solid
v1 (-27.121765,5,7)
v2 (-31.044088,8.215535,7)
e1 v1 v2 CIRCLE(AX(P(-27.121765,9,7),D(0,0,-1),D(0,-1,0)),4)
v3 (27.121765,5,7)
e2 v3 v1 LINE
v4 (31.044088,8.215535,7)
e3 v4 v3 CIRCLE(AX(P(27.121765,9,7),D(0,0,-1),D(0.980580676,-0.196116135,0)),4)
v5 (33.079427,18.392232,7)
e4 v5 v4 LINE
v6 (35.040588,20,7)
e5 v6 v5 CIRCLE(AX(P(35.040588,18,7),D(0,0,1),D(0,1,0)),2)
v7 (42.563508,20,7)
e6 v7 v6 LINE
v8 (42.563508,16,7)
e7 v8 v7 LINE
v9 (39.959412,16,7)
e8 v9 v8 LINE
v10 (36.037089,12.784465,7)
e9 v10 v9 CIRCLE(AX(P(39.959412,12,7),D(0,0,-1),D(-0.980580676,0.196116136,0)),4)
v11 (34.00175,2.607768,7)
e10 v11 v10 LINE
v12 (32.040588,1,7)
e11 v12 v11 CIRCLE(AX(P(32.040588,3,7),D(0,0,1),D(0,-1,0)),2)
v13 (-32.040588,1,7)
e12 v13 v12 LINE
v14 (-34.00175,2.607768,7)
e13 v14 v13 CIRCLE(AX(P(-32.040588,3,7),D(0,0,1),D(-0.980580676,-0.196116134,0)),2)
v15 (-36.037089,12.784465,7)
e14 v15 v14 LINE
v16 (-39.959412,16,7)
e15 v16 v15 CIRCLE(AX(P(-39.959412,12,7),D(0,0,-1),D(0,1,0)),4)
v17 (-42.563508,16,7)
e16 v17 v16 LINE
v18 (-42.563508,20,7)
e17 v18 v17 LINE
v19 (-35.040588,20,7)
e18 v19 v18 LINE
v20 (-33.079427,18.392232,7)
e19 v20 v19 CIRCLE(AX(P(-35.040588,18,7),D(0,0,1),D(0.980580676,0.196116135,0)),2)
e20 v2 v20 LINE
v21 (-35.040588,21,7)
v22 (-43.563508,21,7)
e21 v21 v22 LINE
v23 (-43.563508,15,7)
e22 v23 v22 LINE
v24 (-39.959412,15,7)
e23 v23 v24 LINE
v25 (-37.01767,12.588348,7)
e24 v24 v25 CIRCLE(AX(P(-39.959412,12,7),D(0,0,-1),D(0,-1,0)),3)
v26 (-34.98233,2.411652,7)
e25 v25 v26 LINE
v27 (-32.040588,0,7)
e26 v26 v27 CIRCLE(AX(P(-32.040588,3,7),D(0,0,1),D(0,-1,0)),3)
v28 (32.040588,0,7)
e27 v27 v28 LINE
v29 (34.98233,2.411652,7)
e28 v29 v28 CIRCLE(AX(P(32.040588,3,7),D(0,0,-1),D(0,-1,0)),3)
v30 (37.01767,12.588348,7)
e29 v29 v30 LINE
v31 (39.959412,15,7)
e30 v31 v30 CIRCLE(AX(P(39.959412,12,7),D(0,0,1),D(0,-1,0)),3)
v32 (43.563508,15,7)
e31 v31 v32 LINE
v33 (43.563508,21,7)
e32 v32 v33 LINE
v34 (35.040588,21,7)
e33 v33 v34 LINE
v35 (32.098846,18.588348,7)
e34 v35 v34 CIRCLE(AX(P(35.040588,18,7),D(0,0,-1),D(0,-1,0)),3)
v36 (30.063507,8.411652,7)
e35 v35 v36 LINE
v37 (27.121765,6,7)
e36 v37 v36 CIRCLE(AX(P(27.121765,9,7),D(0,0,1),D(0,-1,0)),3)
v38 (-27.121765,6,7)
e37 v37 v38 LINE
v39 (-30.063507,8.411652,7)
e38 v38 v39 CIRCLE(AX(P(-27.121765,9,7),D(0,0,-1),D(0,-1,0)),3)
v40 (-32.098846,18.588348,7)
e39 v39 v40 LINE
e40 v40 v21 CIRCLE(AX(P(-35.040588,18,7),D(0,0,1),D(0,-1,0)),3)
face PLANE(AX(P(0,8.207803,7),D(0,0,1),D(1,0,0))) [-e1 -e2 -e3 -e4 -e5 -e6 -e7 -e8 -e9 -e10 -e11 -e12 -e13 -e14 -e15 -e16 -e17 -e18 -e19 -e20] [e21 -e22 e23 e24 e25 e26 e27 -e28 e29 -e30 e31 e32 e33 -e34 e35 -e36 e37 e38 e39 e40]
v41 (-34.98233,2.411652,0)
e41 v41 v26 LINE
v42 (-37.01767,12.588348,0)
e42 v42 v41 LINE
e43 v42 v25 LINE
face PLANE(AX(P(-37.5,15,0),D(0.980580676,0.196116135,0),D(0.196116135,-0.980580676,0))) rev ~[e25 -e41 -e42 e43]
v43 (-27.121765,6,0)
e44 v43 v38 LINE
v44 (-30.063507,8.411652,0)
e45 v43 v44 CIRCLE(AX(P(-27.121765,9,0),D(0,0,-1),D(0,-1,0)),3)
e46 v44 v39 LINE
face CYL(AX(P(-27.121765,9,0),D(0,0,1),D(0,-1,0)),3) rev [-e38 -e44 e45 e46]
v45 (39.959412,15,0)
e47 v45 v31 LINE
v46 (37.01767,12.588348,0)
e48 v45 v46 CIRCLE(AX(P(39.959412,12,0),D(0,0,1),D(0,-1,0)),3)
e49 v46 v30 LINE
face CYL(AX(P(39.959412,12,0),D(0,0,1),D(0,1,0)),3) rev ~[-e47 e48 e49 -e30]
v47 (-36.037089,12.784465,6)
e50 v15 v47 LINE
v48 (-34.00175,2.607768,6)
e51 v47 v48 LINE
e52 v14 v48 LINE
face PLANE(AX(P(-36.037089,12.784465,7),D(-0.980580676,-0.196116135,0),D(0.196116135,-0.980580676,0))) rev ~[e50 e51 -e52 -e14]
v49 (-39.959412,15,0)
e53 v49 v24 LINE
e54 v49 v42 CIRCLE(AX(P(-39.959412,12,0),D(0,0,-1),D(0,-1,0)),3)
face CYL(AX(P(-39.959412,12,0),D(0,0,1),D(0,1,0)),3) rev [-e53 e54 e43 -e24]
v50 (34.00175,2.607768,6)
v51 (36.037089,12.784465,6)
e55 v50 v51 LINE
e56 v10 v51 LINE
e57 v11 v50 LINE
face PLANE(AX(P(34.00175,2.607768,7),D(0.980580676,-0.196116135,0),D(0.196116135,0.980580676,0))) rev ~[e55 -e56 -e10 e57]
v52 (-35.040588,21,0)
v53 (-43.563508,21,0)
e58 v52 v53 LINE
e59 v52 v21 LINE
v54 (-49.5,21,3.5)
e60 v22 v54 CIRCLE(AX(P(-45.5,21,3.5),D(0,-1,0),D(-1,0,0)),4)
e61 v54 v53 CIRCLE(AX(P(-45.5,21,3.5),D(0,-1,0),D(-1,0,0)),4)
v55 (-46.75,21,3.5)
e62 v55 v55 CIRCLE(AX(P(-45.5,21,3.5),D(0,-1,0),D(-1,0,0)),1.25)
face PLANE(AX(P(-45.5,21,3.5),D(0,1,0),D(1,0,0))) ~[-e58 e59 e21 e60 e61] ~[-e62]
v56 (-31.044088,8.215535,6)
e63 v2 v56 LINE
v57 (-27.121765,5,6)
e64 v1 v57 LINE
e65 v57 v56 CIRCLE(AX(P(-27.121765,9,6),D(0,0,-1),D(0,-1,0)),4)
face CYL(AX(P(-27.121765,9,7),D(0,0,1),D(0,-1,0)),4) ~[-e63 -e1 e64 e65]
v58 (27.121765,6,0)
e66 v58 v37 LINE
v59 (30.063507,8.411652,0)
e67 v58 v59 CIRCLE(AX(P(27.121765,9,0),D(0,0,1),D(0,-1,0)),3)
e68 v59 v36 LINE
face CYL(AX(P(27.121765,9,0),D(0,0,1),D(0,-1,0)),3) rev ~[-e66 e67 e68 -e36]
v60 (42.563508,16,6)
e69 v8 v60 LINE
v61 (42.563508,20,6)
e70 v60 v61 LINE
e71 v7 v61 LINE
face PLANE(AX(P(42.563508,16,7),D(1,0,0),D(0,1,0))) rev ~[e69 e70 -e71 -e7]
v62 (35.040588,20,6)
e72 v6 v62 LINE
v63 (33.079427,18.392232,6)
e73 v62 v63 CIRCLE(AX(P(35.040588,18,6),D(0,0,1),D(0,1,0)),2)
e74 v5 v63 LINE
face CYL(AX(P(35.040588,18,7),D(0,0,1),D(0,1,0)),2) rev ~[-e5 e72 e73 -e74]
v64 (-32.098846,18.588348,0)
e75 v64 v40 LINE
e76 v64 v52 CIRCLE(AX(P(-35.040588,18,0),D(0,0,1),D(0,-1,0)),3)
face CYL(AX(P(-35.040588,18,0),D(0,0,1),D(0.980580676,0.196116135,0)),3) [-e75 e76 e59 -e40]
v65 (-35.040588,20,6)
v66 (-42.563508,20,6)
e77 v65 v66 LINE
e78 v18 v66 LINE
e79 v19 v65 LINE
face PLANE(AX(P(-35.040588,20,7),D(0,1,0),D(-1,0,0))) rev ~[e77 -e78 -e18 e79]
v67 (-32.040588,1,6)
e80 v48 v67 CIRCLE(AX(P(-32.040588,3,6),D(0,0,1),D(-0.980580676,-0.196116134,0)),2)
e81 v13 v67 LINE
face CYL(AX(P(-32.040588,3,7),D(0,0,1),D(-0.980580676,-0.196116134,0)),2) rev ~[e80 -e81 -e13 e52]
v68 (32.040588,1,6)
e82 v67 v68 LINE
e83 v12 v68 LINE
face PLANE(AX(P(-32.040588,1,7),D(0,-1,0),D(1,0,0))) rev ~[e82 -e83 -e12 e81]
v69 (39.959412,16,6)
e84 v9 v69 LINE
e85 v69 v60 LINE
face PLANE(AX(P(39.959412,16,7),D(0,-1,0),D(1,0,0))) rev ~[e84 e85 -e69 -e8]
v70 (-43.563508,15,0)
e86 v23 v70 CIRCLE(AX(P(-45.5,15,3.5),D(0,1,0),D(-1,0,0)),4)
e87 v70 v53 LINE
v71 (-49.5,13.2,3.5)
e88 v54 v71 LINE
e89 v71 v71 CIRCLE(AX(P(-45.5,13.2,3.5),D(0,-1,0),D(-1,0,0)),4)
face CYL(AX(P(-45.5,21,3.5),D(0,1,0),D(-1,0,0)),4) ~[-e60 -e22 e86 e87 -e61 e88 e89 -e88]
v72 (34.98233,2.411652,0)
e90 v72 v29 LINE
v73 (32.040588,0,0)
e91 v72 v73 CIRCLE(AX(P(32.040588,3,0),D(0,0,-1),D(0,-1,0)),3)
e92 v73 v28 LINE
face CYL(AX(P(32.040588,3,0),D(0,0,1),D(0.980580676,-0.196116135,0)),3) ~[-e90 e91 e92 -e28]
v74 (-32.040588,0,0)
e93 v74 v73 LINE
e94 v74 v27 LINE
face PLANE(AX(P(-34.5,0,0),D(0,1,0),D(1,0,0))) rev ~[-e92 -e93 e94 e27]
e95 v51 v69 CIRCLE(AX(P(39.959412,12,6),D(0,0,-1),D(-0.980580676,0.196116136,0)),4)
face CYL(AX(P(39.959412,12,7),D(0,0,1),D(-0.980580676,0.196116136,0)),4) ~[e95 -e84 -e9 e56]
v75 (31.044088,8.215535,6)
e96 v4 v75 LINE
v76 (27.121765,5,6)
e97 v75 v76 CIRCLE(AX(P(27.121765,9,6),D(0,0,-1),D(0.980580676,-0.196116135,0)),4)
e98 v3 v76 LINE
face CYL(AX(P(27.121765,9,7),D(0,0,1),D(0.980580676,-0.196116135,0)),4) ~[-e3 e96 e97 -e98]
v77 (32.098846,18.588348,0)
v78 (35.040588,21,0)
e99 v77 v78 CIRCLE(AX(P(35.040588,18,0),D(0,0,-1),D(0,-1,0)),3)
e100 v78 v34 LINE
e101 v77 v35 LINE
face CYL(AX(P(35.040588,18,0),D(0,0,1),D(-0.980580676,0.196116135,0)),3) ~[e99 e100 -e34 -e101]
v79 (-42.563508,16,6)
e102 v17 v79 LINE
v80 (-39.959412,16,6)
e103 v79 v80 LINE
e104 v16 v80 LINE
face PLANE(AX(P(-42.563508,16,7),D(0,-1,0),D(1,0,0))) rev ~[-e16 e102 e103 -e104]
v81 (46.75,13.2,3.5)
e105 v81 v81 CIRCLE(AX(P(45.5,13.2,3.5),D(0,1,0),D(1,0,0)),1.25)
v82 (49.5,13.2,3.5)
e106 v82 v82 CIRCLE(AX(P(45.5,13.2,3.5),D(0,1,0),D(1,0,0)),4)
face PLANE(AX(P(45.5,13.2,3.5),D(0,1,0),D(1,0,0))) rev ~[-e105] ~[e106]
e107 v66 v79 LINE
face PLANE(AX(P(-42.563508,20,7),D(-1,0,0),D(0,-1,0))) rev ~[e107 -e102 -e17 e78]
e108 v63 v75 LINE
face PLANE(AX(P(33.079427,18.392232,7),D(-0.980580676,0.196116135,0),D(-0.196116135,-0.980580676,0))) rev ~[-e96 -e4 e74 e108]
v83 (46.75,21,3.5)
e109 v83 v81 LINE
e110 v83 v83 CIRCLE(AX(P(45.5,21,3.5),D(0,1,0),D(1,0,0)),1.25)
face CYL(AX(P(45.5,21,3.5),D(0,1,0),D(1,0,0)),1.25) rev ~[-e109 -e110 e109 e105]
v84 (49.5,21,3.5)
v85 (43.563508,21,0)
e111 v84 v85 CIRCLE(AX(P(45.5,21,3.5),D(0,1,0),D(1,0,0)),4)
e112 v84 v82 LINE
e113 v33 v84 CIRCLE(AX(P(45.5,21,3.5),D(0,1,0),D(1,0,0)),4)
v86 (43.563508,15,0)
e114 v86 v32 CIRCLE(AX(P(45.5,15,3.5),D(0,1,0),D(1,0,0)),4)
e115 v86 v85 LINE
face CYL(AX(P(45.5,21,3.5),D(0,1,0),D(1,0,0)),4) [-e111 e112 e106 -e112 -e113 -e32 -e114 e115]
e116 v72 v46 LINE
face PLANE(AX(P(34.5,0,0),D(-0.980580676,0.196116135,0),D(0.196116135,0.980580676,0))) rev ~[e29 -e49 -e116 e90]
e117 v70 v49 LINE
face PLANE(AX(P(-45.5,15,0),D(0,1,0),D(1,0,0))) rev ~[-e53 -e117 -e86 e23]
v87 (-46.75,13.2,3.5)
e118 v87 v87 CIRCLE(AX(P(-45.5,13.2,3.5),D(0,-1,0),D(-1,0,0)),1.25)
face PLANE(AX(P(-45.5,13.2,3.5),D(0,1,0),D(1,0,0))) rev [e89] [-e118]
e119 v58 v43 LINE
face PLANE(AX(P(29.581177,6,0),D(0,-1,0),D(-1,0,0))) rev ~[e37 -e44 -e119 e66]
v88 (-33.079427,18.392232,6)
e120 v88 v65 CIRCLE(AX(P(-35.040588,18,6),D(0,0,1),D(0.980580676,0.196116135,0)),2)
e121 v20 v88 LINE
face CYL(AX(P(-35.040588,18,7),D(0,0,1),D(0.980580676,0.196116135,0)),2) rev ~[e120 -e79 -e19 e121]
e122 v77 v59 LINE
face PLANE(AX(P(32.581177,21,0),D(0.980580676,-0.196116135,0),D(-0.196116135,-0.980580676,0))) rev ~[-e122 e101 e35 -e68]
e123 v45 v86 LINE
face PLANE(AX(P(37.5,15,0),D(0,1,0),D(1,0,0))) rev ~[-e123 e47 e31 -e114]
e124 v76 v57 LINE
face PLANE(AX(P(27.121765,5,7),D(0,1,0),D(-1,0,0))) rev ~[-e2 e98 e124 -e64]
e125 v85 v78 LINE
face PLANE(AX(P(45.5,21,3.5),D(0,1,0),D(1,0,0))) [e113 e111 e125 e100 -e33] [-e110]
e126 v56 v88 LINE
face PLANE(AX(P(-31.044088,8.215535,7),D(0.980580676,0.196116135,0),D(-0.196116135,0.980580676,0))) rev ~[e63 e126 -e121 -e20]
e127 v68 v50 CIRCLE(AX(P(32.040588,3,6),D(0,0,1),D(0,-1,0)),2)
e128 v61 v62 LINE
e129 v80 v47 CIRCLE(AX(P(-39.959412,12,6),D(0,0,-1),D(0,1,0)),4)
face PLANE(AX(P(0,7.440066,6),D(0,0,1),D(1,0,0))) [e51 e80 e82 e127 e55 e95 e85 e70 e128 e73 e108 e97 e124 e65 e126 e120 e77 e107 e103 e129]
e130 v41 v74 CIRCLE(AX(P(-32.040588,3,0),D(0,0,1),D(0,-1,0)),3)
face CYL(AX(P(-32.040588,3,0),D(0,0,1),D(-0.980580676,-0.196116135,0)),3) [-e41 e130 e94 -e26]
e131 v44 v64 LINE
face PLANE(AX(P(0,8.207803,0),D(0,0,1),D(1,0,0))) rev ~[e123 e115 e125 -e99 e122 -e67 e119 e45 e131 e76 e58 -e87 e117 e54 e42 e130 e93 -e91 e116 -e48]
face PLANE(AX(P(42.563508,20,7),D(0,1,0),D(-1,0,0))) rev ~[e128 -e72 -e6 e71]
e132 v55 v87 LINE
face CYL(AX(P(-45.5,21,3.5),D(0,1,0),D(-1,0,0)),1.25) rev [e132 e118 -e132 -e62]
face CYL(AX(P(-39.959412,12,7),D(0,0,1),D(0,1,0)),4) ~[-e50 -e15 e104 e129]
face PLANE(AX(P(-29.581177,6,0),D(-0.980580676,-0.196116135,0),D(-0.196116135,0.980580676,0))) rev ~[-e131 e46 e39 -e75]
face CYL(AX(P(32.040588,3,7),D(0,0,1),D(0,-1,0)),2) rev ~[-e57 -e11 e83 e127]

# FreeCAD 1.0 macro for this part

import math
import FreeCAD as App
import Part
import Sketcher

V = App.Vector
Q = App.Units.Quantity


def edges_at(feature, points):
    """Names of the edges that pass closest to the given points."""
    edges = feature.Shape.Edges
    near = lambda p: min(range(len(edges)), key=lambda i: edges[i].distToShape(Part.Vertex(*p))[0])
    return sorted({f"Edge{near(p) + 1}" for p in points})


def add_polygon(sketch, points):
    """Adds a closed chain of lines whose ends are joined by coincident constraints."""
    first, n = sketch.GeometryCount, len(points)
    for a, b in zip(points, points[1:] + points[:1]):
        sketch.addGeometry(Part.LineSegment(App.Vector(*a, 0), App.Vector(*b, 0)), False)
    for i in range(n):
        sketch.addConstraint(Sketcher.Constraint("Coincident", first + i, 2, first + (i + 1) % n, 1))

doc = App.newDocument("Part")
body = doc.addObject("PartDesign::Body", "Body")

# Sketch on XY plane
sketch1 = body.newObject("Sketcher::SketchObject", "Sketch")
sketch1.AttachmentSupport = (doc.getObject("XY_Plane"), [""])
sketch1.MapMode = "FlatFace"
add_polygon(sketch1, [(-34.5, 0), (34.5, 0), (37.5, 15), (45.5, 15), (45.5, 21), (32.581177, 21), (29.581177, 6), (-29.581177, 6), (-32.581177, 21), (-45.5, 21), (-45.5, 15), (-37.5, 15)])  # lines 0-11
sketch1.addConstraint(Sketcher.Constraint("Horizontal", 0))
sketch1.addConstraint(Sketcher.Constraint("Horizontal", 2))
sketch1.addConstraint(Sketcher.Constraint("Vertical", 3))
sketch1.addConstraint(Sketcher.Constraint("Horizontal", 4))
sketch1.addConstraint(Sketcher.Constraint("Horizontal", 6))
sketch1.addConstraint(Sketcher.Constraint("Horizontal", 8))
sketch1.addConstraint(Sketcher.Constraint("Vertical", 9))
sketch1.addConstraint(Sketcher.Constraint("Horizontal", 10))
sketch1.addConstraint(Sketcher.Constraint("Symmetric", 0, 2, 11, 2, -1, 1))
sketch1.addConstraint(Sketcher.Constraint("Symmetric", 4, 2, 7, 2, -2))
sketch1.addConstraint(Sketcher.Constraint("Symmetric", 2, 2, 9, 2, -2))
sketch1.addConstraint(Sketcher.Constraint("Parallel", 1, 5))
sketch1.addConstraint(Sketcher.Constraint("Parallel", 7, 11))
sketch1.addConstraint(Sketcher.Constraint("Equal", 2, 10))
sketch1.addConstraint(Sketcher.Constraint("Equal", 1, 5))
sketch1.addConstraint(Sketcher.Constraint("DistanceX", 0, 1, 0, 2, Q("69 mm")))
sketch1.addConstraint(Sketcher.Constraint("DistanceX", 2, 1, 2, 2, Q("8 mm")))
sketch1.addConstraint(Sketcher.Constraint("DistanceY", 3, 1, 3, 2, Q("6 mm")))
sketch1.addConstraint(Sketcher.Constraint("DistanceY", -1, 1, 1, 2, Q("15 mm")))
sketch1.addConstraint(Sketcher.Constraint("DistanceX", 0, 2, 1, 2, Q("3 mm")))
sketch1.addConstraint(Sketcher.Constraint("DistanceX", 4, 2, 4, 1, Q("12.918823 mm")))
pad1 = body.newObject("PartDesign::Pad", "Pad")
pad1.Profile = sketch1
pad1.Length = 7

# Sketch on XZ plane
sketch2 = body.newObject("Sketcher::SketchObject", "Sketch001")
sketch2.AttachmentSupport = (doc.getObject("XZ_Plane"), [""])
sketch2.MapMode = "FlatFace"
sketch2.AttachmentOffset = App.Placement(V(0, 0, -21), App.Rotation())
sketch2.addGeometry(Part.Circle(V(45.5, 3.5, 0), V(0, 0, 1), 4), False)
sketch2.addConstraint(Sketcher.Constraint("Diameter", 0, Q("8 mm")))
sketch2.addConstraint(Sketcher.Constraint("DistanceX", -1, 1, 0, 3, Q("45.5 mm")))
sketch2.addConstraint(Sketcher.Constraint("DistanceY", -1, 1, 0, 3, Q("3.5 mm")))
pad2 = body.newObject("PartDesign::Pad", "Pad001")
pad2.Profile = sketch2
pad2.Length = 7.8
doc.recompute()

mirrored = body.newObject("PartDesign::Mirrored", "Mirrored")
mirrored.Originals = [pad2]
mirrored.MirrorPlane = (doc.getObject("YZ_Plane"), [""])
body.Tip = mirrored

# Sketch on XZ plane
sketch3 = body.newObject("Sketcher::SketchObject", "Sketch002")
sketch3.AttachmentSupport = (doc.getObject("XZ_Plane"), [""])
sketch3.MapMode = "FlatFace"
sketch3.AttachmentOffset = App.Placement(V(0, 0, -21), App.Rotation())
sketch3.addGeometry(Part.Circle(V(45.5, 3.5, 0), V(0, 0, 1), 1.25), False)
sketch3.addConstraint(Sketcher.Constraint("Diameter", 0, Q("2.5 mm")))
sketch3.addConstraint(Sketcher.Constraint("DistanceX", -1, 1, 0, 3, Q("45.5 mm")))
sketch3.addConstraint(Sketcher.Constraint("DistanceY", -1, 1, 0, 3, Q("3.5 mm")))
pocket1 = body.newObject("PartDesign::Pocket", "Pocket")
pocket1.Profile = sketch3
pocket1.Length = 7.8
pocket1.Reversed = True
doc.recompute()

mirrored2 = body.newObject("PartDesign::Mirrored", "Mirrored001")
mirrored2.Originals = [pocket1]
mirrored2.MirrorPlane = (doc.getObject("YZ_Plane"), [""])
body.Tip = mirrored2
doc.recompute()

fillet = body.newObject("PartDesign::Fillet", "Fillet")
fillet.Base = (mirrored2, edges_at(mirrored2, [(34.5, 0, 3.5), (29.581, 6, 3.5)]))
fillet.Radius = 3
doc.recompute()

fillet2 = body.newObject("PartDesign::Fillet", "Fillet001")
fillet2.Base = (fillet, edges_at(fillet, [
    (37.5, 15, 3.5),
    (-34.5, 0, 3.5),
    (-37.5, 15, 3.5),
    (-32.581, 21, 3.5),
    (-29.581, 6, 3.5),
    (32.581, 21, 3.5),
]))
fillet2.Radius = 3

# Sketch on XY plane
sketch4 = body.newObject("Sketcher::SketchObject", "Sketch003")
sketch4.AttachmentSupport = (doc.getObject("XY_Plane"), [""])
sketch4.MapMode = "FlatFace"
sketch4.AttachmentOffset = App.Placement(V(0, 0, 7), App.Rotation())
sketch4.addGeometry(Part.LineSegment(V(-36.037089, 12.784465, 0), V(-34.00175, 2.607768, 0)), False)
sketch4.addGeometry(Part.ArcOfCircle(Part.Circle(V(-32.040588, 3, 0), V(0, 0, 1), 2), math.radians(-168.690068), math.radians(-90)), False)
sketch4.addGeometry(Part.LineSegment(V(-32.040588, 1, 0), V(32.040588, 1, 0)), False)
sketch4.addGeometry(Part.ArcOfCircle(Part.Circle(V(32.040588, 3, 0), V(0, 0, 1), 2), math.radians(-90), math.radians(-11.309932)), False)
sketch4.addGeometry(Part.LineSegment(V(34.00175, 2.607768, 0), V(36.037089, 12.784465, 0)), False)
sketch4.addGeometry(Part.ArcOfCircle(Part.Circle(V(39.959412, 12, 0), V(0, 0, 1), 4), math.radians(90), math.radians(168.690067)), False)
sketch4.addGeometry(Part.LineSegment(V(39.959412, 16, 0), V(42.563508, 16, 0)), False)
sketch4.addGeometry(Part.LineSegment(V(42.563508, 16, 0), V(42.563508, 20, 0)), False)
sketch4.addGeometry(Part.LineSegment(V(42.563508, 20, 0), V(35.040588, 20, 0)), False)
sketch4.addGeometry(Part.ArcOfCircle(Part.Circle(V(35.040588, 18, 0), V(0, 0, 1), 2), math.radians(90), math.radians(168.690068)), False)
sketch4.addGeometry(Part.LineSegment(V(33.079427, 18.392232, 0), V(31.044088, 8.215535, 0)), False)
sketch4.addGeometry(Part.ArcOfCircle(Part.Circle(V(27.121765, 9, 0), V(0, 0, 1), 4), math.radians(-90), math.radians(-11.309932)), False)
sketch4.addGeometry(Part.LineSegment(V(27.121765, 5, 0), V(-27.121765, 5, 0)), False)
sketch4.addGeometry(Part.ArcOfCircle(Part.Circle(V(-27.121765, 9, 0), V(0, 0, 1), 4), math.radians(-168.690068), math.radians(-90)), False)
sketch4.addGeometry(Part.LineSegment(V(-31.044088, 8.215535, 0), V(-33.079427, 18.392232, 0)), False)
sketch4.addGeometry(Part.ArcOfCircle(Part.Circle(V(-35.040588, 18, 0), V(0, 0, 1), 2), math.radians(11.309932), math.radians(90)), False)
sketch4.addGeometry(Part.LineSegment(V(-35.040588, 20, 0), V(-42.563508, 20, 0)), False)
sketch4.addGeometry(Part.LineSegment(V(-42.563508, 20, 0), V(-42.563508, 16, 0)), False)
sketch4.addGeometry(Part.LineSegment(V(-42.563508, 16, 0), V(-39.959412, 16, 0)), False)
sketch4.addGeometry(Part.ArcOfCircle(Part.Circle(V(-39.959412, 12, 0), V(0, 0, 1), 4), math.radians(11.309933), math.radians(90)), False)
sketch4.addConstraint(Sketcher.Constraint("Tangent", 0, 2, 1, 1))
sketch4.addConstraint(Sketcher.Constraint("Tangent", 1, 2, 2, 1))
sketch4.addConstraint(Sketcher.Constraint("Tangent", 2, 2, 3, 1))
sketch4.addConstraint(Sketcher.Constraint("Tangent", 3, 2, 4, 1))
sketch4.addConstraint(Sketcher.Constraint("Tangent", 4, 2, 5, 2))
sketch4.addConstraint(Sketcher.Constraint("Tangent", 5, 1, 6, 1))
sketch4.addConstraint(Sketcher.Constraint("Coincident", 6, 2, 7, 1))
sketch4.addConstraint(Sketcher.Constraint("Coincident", 7, 2, 8, 1))
sketch4.addConstraint(Sketcher.Constraint("Tangent", 8, 2, 9, 1))
sketch4.addConstraint(Sketcher.Constraint("Tangent", 9, 2, 10, 1))
sketch4.addConstraint(Sketcher.Constraint("Tangent", 10, 2, 11, 2))
sketch4.addConstraint(Sketcher.Constraint("Tangent", 11, 1, 12, 1))
sketch4.addConstraint(Sketcher.Constraint("Tangent", 12, 2, 13, 2))
sketch4.addConstraint(Sketcher.Constraint("Tangent", 13, 1, 14, 1))
sketch4.addConstraint(Sketcher.Constraint("Tangent", 14, 2, 15, 1))
sketch4.addConstraint(Sketcher.Constraint("Tangent", 15, 2, 16, 1))
sketch4.addConstraint(Sketcher.Constraint("Coincident", 16, 2, 17, 1))
sketch4.addConstraint(Sketcher.Constraint("Coincident", 17, 2, 18, 1))
sketch4.addConstraint(Sketcher.Constraint("Tangent", 18, 2, 19, 2))
sketch4.addConstraint(Sketcher.Constraint("Tangent", 19, 1, 0, 1))
sketch4.addConstraint(Sketcher.Constraint("Horizontal", 2))
sketch4.addConstraint(Sketcher.Constraint("Horizontal", 6))
sketch4.addConstraint(Sketcher.Constraint("Vertical", 7))
sketch4.addConstraint(Sketcher.Constraint("Horizontal", 8))
sketch4.addConstraint(Sketcher.Constraint("Horizontal", 12))
sketch4.addConstraint(Sketcher.Constraint("Horizontal", 16))
sketch4.addConstraint(Sketcher.Constraint("Vertical", 17))
sketch4.addConstraint(Sketcher.Constraint("Horizontal", 18))
sketch4.addConstraint(Sketcher.Constraint("Equal", 1, 3))
sketch4.addConstraint(Sketcher.Constraint("Equal", 3, 9))
sketch4.addConstraint(Sketcher.Constraint("Equal", 5, 11))
sketch4.addConstraint(Sketcher.Constraint("Equal", 11, 13))
sketch4.addConstraint(Sketcher.Constraint("Equal", 9, 15))
sketch4.addConstraint(Sketcher.Constraint("Equal", 13, 19))
sketch4.addConstraint(Sketcher.Constraint("Symmetric", 9, 3, 15, 3, -2))
sketch4.addConstraint(Sketcher.Constraint("Symmetric", 5, 3, 19, 3, -2))
sketch4.addConstraint(Sketcher.Constraint("Parallel", 4, 10))
sketch4.addConstraint(Sketcher.Constraint("Parallel", 0, 14))
sketch4.addConstraint(Sketcher.Constraint("Horizontal", 0, 2, 3, 2))
sketch4.addConstraint(Sketcher.Constraint("Equal", 8, 16))
sketch4.addConstraint(Sketcher.Constraint("Equal", 4, 10))
sketch4.addConstraint(Sketcher.Constraint("Radius", 1, Q("2 mm")))
sketch4.addConstraint(Sketcher.Constraint("Radius", 5, Q("4 mm")))
sketch4.addConstraint(Sketcher.Constraint("DistanceY", 7, 1, 7, 2, Q("4 mm")))
sketch4.addConstraint(Sketcher.Constraint("DistanceY", -1, 1, 1, 3, Q("3 mm")))
sketch4.addConstraint(Sketcher.Constraint("DistanceY", -1, 1, 5, 3, Q("12 mm")))
sketch4.addConstraint(Sketcher.Constraint("DistanceX", 1, 3, 5, 3, Q("72 mm")))
sketch4.addConstraint(Sketcher.Constraint("DistanceX", 3, 3, 9, 3, Q("3 mm")))
sketch4.addConstraint(Sketcher.Constraint("DistanceX", 10, 2, 4, 2, Q("4.993001 mm")))
sketch4.addConstraint(Sketcher.Constraint("DistanceX", 8, 2, 8, 1, Q("7.52292 mm")))
pocket2 = body.newObject("PartDesign::Pocket", "Pocket001")
pocket2.Profile = sketch4
pocket2.Length = 1

doc.recompute()
